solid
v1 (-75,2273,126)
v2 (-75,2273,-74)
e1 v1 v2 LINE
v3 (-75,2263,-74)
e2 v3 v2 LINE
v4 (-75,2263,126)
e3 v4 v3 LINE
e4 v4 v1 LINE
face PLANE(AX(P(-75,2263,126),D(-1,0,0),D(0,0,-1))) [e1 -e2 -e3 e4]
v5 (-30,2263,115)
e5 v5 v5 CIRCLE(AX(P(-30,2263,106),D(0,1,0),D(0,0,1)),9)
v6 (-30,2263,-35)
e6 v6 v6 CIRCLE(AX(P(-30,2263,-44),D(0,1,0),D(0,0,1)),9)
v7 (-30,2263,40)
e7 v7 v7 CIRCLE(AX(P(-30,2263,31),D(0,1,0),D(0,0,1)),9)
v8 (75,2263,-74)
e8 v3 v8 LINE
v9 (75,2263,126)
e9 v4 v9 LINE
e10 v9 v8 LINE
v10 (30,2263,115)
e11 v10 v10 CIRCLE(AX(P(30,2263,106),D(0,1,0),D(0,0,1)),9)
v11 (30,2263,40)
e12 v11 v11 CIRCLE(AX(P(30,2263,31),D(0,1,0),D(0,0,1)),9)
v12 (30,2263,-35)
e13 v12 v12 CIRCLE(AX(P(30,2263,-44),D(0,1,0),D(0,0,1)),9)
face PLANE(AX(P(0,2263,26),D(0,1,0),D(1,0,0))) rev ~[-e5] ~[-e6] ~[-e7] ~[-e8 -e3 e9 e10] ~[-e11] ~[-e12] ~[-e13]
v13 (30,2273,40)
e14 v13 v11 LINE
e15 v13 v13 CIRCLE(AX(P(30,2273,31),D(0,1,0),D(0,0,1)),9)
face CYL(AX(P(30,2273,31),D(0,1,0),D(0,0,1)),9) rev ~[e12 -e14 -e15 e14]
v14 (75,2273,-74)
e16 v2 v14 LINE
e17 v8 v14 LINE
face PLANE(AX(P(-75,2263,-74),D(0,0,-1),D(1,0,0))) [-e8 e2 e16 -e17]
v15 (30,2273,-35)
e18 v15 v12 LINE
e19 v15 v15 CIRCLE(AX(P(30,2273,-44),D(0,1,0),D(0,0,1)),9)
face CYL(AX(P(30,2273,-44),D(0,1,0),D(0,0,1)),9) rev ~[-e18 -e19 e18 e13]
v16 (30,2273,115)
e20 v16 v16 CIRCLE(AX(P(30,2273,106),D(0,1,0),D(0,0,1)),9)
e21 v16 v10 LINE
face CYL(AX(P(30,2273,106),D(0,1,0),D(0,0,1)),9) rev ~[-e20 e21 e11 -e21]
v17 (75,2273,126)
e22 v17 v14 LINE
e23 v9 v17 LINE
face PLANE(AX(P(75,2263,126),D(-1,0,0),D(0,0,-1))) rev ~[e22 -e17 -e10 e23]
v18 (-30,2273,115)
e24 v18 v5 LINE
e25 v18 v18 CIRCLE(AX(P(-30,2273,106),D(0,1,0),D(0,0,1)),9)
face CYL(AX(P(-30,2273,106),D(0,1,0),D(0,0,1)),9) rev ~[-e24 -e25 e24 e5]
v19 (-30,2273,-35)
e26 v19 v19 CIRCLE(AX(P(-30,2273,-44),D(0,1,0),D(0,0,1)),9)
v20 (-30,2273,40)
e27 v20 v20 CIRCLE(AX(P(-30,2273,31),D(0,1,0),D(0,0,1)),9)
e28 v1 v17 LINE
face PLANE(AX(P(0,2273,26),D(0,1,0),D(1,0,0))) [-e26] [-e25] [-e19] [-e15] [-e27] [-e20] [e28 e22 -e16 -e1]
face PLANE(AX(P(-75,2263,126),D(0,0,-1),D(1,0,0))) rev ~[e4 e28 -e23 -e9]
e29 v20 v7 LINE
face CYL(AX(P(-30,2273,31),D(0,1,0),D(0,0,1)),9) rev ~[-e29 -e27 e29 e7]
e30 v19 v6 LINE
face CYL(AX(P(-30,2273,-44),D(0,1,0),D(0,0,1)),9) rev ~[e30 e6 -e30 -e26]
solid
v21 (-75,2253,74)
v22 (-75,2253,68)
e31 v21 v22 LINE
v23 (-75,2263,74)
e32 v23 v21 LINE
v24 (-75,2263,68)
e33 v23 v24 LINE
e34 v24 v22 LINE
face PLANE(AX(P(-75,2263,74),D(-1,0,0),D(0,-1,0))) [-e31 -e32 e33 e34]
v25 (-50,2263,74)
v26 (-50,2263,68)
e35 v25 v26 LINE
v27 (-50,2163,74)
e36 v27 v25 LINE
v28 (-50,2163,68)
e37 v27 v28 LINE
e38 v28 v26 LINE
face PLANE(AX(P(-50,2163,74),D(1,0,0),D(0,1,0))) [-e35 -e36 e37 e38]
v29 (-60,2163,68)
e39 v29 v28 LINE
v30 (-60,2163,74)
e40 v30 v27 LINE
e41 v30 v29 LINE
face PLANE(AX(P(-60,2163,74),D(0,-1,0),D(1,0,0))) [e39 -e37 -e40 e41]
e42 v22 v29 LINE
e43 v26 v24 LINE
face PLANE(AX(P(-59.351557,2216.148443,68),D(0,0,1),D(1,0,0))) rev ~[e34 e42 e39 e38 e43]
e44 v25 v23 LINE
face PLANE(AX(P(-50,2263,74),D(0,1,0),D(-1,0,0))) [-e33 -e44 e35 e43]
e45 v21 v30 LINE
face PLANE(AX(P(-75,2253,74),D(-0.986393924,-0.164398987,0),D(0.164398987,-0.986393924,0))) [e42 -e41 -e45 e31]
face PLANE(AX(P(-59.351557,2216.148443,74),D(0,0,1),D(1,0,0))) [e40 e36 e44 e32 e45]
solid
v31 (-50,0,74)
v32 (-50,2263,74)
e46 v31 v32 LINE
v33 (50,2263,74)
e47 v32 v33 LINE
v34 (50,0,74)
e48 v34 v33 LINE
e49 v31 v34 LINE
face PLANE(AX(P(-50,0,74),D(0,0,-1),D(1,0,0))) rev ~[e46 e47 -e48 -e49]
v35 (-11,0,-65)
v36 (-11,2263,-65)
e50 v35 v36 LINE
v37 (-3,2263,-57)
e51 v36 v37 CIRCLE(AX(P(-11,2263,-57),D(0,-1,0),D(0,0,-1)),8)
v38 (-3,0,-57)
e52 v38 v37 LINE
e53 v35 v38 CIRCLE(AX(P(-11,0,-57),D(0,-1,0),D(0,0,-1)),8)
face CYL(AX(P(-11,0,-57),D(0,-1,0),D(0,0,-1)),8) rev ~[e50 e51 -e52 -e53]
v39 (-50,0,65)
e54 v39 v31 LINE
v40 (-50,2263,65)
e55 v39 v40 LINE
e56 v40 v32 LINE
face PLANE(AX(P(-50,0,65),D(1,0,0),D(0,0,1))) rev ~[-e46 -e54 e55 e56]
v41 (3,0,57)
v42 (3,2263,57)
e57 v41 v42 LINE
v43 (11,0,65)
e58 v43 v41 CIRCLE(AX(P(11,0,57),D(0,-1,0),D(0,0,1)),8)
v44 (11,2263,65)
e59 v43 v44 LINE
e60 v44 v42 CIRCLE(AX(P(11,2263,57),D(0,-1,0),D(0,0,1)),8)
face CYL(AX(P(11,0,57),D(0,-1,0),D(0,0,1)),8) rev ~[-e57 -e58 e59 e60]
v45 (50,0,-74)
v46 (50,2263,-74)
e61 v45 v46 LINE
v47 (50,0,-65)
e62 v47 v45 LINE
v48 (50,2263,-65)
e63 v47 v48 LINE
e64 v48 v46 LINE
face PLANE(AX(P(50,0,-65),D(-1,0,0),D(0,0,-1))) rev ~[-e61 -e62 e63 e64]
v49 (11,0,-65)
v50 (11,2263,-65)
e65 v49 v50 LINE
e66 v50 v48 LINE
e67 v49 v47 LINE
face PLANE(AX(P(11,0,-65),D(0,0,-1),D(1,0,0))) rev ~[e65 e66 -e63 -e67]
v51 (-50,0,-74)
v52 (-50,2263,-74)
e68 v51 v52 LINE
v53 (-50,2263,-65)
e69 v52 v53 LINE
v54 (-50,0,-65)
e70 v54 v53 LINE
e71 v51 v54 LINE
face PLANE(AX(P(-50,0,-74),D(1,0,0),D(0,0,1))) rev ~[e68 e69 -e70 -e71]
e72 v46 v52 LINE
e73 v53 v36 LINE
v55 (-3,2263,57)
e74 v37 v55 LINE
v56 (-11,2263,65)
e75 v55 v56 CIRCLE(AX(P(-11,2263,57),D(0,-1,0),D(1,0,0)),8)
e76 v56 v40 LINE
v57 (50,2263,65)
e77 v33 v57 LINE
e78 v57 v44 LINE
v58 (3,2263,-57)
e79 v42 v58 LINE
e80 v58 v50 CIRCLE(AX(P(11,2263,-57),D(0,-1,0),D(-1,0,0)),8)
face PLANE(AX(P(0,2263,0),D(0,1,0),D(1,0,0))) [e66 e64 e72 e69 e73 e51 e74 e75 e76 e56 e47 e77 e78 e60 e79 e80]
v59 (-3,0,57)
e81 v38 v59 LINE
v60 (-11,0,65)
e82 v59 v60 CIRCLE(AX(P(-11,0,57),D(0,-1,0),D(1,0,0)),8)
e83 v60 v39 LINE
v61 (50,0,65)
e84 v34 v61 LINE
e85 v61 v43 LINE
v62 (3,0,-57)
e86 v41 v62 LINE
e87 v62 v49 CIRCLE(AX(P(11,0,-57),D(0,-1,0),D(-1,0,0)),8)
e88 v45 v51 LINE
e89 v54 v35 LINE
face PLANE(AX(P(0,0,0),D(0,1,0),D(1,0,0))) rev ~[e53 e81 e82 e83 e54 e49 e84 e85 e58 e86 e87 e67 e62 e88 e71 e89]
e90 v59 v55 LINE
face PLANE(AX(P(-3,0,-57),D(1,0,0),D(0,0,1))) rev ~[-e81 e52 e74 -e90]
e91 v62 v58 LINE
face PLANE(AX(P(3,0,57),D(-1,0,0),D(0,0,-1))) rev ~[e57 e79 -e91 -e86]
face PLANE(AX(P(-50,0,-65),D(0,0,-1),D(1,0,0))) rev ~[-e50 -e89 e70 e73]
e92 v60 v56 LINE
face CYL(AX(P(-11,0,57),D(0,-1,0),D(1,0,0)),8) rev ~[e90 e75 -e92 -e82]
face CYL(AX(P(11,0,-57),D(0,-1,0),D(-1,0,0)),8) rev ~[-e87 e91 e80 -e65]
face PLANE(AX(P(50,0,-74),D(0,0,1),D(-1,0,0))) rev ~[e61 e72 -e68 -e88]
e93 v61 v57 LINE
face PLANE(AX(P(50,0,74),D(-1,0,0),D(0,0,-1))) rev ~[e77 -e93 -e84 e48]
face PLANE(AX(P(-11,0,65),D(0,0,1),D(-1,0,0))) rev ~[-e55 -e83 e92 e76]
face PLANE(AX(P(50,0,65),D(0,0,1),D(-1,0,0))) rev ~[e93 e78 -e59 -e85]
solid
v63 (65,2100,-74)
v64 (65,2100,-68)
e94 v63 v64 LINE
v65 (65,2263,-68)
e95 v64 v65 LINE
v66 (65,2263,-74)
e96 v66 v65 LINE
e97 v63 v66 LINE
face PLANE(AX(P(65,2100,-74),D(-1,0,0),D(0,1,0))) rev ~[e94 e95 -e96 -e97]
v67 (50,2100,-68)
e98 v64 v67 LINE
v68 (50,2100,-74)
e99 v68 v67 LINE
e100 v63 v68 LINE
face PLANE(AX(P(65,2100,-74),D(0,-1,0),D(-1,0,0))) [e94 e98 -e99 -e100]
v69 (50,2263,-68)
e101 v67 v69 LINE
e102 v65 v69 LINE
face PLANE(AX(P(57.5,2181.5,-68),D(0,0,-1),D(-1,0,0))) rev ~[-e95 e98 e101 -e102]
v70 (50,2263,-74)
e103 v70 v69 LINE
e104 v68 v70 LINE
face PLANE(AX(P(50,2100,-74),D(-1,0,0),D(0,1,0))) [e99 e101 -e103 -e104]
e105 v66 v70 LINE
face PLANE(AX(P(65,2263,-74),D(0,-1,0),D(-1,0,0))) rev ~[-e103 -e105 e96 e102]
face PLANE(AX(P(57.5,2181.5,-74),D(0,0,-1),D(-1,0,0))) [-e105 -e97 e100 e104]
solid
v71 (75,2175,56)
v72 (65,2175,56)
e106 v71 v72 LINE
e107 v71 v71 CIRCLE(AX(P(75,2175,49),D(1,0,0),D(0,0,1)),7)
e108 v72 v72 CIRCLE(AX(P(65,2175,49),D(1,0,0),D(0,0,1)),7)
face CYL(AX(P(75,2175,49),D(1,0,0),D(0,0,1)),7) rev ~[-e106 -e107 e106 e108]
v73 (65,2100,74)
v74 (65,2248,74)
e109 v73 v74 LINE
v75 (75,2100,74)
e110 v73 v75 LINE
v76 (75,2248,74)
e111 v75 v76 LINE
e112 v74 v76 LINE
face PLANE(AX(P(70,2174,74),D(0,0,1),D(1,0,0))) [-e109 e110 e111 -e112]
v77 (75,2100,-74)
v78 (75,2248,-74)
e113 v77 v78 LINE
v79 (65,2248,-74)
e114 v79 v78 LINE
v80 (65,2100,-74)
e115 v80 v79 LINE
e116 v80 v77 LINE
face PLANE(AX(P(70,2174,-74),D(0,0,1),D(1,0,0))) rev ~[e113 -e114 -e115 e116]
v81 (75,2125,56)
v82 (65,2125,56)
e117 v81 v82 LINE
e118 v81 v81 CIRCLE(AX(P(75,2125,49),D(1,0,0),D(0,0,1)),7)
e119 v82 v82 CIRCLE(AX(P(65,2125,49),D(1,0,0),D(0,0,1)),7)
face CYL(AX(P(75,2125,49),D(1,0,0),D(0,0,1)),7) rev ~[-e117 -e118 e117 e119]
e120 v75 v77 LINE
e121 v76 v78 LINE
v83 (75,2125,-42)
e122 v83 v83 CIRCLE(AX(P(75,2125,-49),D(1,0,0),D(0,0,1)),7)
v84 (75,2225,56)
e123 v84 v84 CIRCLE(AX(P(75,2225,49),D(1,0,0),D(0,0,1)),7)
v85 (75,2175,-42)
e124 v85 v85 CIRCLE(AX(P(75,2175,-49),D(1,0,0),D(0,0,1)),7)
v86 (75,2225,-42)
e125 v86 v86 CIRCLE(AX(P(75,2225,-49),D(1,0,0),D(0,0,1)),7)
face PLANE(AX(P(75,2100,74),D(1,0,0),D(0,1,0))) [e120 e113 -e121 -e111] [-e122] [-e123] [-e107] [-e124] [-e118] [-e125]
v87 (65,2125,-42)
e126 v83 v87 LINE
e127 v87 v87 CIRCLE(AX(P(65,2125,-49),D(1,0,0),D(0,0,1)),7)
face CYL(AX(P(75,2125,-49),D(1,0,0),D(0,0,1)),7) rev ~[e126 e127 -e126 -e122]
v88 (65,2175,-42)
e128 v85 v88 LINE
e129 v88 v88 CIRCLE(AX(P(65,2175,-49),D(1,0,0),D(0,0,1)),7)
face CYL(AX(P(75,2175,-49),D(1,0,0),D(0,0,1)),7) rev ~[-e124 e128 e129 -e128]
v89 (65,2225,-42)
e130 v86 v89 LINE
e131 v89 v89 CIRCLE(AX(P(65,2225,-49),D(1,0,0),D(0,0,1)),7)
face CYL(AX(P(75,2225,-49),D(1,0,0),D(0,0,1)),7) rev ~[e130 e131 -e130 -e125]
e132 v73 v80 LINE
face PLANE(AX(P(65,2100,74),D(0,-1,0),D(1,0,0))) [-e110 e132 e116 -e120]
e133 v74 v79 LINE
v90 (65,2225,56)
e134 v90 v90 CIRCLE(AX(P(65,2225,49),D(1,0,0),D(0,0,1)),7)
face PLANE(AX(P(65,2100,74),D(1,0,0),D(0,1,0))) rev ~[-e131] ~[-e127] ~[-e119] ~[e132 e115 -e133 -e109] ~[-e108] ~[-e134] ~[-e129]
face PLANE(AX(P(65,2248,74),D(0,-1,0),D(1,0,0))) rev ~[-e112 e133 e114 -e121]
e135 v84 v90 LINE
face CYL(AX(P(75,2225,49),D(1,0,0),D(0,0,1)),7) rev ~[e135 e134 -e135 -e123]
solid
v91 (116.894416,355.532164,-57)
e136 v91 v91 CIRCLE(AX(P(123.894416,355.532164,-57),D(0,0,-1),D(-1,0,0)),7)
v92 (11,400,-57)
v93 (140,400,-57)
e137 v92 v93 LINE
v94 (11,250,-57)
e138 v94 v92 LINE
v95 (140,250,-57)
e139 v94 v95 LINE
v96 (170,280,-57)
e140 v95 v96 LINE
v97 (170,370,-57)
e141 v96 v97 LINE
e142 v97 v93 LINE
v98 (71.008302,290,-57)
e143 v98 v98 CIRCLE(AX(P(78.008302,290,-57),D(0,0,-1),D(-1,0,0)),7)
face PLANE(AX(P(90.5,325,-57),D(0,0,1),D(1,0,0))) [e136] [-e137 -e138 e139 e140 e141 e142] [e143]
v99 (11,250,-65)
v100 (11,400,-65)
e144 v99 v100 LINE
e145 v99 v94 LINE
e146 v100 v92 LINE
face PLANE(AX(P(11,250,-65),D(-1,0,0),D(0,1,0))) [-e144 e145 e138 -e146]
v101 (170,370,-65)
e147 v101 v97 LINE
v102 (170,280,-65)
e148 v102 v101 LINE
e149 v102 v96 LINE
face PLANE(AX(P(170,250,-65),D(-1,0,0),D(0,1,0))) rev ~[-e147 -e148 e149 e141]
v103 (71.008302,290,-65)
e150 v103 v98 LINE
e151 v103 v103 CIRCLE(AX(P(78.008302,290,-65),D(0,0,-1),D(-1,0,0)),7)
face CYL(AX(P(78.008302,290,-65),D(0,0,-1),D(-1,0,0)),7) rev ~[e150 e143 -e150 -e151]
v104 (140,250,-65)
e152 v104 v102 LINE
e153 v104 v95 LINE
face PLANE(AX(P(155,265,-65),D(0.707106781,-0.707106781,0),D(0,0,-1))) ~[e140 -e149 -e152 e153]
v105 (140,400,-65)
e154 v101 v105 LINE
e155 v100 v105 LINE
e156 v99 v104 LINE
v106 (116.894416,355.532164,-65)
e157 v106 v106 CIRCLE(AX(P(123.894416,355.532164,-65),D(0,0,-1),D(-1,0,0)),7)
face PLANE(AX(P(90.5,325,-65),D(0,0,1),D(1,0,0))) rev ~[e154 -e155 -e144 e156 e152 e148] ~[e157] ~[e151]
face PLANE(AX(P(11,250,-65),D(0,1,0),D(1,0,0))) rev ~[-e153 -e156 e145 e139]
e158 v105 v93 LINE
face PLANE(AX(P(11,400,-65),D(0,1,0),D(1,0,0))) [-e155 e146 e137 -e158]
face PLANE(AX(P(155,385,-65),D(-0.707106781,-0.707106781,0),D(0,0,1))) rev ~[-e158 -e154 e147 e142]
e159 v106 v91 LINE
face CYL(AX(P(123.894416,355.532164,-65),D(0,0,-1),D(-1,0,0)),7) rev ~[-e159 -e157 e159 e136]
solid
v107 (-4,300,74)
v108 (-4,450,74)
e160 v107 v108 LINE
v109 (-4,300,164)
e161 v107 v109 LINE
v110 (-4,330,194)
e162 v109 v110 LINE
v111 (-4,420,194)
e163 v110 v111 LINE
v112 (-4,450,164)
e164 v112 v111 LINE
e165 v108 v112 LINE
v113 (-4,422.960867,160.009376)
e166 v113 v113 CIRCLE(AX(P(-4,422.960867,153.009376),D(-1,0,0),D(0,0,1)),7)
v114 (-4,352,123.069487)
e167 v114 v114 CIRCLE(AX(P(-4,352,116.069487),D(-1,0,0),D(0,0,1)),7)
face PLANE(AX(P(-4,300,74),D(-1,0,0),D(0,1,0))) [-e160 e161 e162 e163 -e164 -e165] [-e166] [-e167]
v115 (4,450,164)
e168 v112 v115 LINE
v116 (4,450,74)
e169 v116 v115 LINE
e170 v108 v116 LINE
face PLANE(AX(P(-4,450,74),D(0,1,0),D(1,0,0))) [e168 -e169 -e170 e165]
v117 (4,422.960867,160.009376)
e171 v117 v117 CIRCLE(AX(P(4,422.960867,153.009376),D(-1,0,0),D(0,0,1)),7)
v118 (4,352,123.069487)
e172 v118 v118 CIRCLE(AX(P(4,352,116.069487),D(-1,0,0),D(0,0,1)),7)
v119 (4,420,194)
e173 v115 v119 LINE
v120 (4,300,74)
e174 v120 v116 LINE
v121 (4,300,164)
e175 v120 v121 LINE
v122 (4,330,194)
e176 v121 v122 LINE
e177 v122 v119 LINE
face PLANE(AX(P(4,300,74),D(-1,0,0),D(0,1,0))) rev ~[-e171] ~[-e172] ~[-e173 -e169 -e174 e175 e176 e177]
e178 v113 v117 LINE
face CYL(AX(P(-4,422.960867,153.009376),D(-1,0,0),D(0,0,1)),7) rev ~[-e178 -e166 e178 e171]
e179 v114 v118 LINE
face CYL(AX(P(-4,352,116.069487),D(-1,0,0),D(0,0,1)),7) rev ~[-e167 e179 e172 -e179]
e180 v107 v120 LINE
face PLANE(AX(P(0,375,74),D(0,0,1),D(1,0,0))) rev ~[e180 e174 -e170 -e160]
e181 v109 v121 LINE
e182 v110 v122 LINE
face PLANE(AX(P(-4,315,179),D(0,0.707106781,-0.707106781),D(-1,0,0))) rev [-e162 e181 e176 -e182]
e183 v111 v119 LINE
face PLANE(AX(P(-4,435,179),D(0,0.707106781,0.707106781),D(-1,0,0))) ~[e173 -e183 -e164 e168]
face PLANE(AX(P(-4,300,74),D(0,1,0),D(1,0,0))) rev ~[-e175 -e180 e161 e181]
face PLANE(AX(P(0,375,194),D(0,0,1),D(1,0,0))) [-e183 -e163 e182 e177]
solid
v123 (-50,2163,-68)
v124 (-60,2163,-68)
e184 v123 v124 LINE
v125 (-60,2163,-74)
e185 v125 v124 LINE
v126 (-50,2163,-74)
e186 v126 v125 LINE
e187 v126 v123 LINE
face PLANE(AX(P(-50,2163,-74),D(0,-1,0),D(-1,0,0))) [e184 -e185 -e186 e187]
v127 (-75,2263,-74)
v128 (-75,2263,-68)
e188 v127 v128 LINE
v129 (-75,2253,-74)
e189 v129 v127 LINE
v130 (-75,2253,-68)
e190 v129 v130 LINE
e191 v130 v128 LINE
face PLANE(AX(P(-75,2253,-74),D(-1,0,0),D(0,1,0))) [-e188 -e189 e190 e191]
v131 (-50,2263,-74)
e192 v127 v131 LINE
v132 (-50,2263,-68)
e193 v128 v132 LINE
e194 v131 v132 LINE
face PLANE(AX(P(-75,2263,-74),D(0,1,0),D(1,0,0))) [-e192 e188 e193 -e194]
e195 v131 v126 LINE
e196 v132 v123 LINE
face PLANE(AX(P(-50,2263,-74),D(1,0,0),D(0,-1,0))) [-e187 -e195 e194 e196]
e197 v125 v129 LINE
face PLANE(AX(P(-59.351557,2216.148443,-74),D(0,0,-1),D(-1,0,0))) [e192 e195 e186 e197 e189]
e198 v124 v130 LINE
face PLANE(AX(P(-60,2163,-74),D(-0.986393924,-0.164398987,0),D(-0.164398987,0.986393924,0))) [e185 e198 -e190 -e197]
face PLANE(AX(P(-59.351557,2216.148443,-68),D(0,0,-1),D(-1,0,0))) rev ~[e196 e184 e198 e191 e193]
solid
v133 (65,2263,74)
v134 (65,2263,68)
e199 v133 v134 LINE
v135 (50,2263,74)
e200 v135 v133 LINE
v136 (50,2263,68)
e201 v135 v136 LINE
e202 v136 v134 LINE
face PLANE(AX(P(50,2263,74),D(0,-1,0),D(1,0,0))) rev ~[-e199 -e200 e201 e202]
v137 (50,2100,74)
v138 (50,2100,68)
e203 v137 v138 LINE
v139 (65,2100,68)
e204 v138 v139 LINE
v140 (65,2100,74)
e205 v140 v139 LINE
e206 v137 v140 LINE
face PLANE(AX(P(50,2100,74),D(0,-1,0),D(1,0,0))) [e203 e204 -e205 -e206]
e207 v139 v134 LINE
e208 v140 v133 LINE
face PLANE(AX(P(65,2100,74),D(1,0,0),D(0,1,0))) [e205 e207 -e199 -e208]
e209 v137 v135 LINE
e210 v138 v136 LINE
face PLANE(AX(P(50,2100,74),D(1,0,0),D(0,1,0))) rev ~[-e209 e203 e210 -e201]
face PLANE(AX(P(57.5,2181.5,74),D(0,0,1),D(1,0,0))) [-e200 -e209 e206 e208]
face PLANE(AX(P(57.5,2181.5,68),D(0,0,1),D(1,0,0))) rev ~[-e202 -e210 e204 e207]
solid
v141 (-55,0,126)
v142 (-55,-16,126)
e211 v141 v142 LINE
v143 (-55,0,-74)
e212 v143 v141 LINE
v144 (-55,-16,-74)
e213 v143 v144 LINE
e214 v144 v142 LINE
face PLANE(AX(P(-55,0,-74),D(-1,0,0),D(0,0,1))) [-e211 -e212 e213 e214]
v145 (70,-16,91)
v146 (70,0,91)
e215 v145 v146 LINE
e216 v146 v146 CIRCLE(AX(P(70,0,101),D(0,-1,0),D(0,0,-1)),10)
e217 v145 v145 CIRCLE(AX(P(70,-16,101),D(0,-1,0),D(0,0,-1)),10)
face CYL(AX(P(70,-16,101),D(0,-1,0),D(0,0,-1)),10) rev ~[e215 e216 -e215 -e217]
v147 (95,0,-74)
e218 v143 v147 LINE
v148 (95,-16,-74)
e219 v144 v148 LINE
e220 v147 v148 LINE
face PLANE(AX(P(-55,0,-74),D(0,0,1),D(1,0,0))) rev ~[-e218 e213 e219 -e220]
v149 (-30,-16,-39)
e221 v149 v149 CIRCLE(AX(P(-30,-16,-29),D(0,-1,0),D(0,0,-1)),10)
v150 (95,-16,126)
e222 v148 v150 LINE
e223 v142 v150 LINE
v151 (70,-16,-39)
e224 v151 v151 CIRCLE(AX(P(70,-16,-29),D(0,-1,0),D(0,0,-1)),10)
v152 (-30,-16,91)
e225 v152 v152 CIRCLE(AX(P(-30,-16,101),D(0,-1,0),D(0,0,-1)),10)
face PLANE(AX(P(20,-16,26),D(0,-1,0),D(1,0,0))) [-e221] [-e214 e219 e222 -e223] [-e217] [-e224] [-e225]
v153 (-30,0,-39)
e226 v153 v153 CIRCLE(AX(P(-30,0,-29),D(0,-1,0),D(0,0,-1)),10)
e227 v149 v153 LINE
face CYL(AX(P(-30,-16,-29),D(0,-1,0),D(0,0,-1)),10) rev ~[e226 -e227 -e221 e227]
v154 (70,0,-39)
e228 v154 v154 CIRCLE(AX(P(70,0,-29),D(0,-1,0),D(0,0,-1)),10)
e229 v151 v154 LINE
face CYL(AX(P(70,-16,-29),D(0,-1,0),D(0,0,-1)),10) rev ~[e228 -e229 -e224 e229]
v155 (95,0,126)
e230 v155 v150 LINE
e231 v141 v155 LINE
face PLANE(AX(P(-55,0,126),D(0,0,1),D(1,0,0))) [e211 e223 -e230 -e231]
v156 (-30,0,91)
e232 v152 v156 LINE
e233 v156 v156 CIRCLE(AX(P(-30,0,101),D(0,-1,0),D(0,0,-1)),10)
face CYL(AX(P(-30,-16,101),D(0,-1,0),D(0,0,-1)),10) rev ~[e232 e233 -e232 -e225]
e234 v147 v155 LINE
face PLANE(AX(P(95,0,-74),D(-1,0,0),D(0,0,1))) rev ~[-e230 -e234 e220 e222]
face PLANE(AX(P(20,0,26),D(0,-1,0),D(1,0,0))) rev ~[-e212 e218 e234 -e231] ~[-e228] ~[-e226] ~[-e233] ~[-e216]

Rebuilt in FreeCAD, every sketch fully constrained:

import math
import FreeCAD as App
import Part
import Sketcher


def edges_at(feature, points):
    """Names of the edges that pass closest to the given points."""
    edges = feature.Shape.Edges
    near = lambda p: min(range(len(edges)), key=lambda i: edges[i].distToShape(Part.Vertex(*p))[0])
    return sorted({f"Edge{near(p) + 1}" for p in points})


def add_polygon(sketch, points):
    """Adds a closed chain of lines whose ends are joined by coincident constraints."""
    first, n = sketch.GeometryCount, len(points)
    for a, b in zip(points, points[1:] + points[:1]):
        sketch.addGeometry(Part.LineSegment(App.Vector(*a, 0), App.Vector(*b, 0)), False)
    for i in range(n):
        sketch.addConstraint(Sketcher.Constraint("Coincident", first + i, 2, first + (i + 1) % n, 1))

doc = App.newDocument("Part")
body = doc.addObject("PartDesign::Body", "Body")

sketch1 = body.newObject("Sketcher::SketchObject", "Sketch")
sketch1.AttachmentSupport = (doc.getObject("XZ_Plane"), [""])
sketch1.MapMode = "FlatFace"
sketch1.addGeometry(Part.LineSegment(App.Vector(-50, 74, 0), App.Vector(50, 74, 0)), False)
sketch1.addGeometry(Part.LineSegment(App.Vector(50, 74, 0), App.Vector(50, 65, 0)), False)
sketch1.addGeometry(Part.LineSegment(App.Vector(50, 65, 0), App.Vector(11, 65, 0)), False)
sketch1.addGeometry(Part.ArcOfCircle(Part.Circle(App.Vector(11, 57, 0), App.Vector(0, 0, 1), 8), math.radians(90), math.radians(180)), False)
sketch1.addGeometry(Part.LineSegment(App.Vector(3, 57, 0), App.Vector(3, -57, 0)), False)
sketch1.addGeometry(Part.ArcOfCircle(Part.Circle(App.Vector(11, -57, 0), App.Vector(0, 0, 1), 8), math.radians(-180), math.radians(-90)), False)
sketch1.addGeometry(Part.LineSegment(App.Vector(11, -65, 0), App.Vector(50, -65, 0)), False)
sketch1.addGeometry(Part.LineSegment(App.Vector(50, -65, 0), App.Vector(50, -74, 0)), False)
sketch1.addGeometry(Part.LineSegment(App.Vector(50, -74, 0), App.Vector(-50, -74, 0)), False)
sketch1.addGeometry(Part.LineSegment(App.Vector(-50, -74, 0), App.Vector(-50, -65, 0)), False)
sketch1.addGeometry(Part.LineSegment(App.Vector(-50, -65, 0), App.Vector(-11, -65, 0)), False)
sketch1.addGeometry(Part.ArcOfCircle(Part.Circle(App.Vector(-11, -57, 0), App.Vector(0, 0, 1), 8), math.radians(-90), math.radians(0)), False)
sketch1.addGeometry(Part.LineSegment(App.Vector(-3, -57, 0), App.Vector(-3, 57, 0)), False)
sketch1.addGeometry(Part.ArcOfCircle(Part.Circle(App.Vector(-11, 57, 0), App.Vector(0, 0, 1), 8), math.radians(0), math.radians(90)), False)
sketch1.addGeometry(Part.LineSegment(App.Vector(-11, 65, 0), App.Vector(-50, 65, 0)), False)
sketch1.addGeometry(Part.LineSegment(App.Vector(-50, 65, 0), App.Vector(-50, 74, 0)), False)
sketch1.addConstraint(Sketcher.Constraint("Coincident", 0, 2, 1, 1))
sketch1.addConstraint(Sketcher.Constraint("Coincident", 1, 2, 2, 1))
sketch1.addConstraint(Sketcher.Constraint("Tangent", 2, 2, 3, 1))
sketch1.addConstraint(Sketcher.Constraint("Tangent", 3, 2, 4, 1))
sketch1.addConstraint(Sketcher.Constraint("Tangent", 4, 2, 5, 1))
sketch1.addConstraint(Sketcher.Constraint("Tangent", 5, 2, 6, 1))
sketch1.addConstraint(Sketcher.Constraint("Coincident", 6, 2, 7, 1))
sketch1.addConstraint(Sketcher.Constraint("Coincident", 7, 2, 8, 1))
sketch1.addConstraint(Sketcher.Constraint("Coincident", 8, 2, 9, 1))
sketch1.addConstraint(Sketcher.Constraint("Coincident", 9, 2, 10, 1))
sketch1.addConstraint(Sketcher.Constraint("Tangent", 10, 2, 11, 1))
sketch1.addConstraint(Sketcher.Constraint("Tangent", 11, 2, 12, 1))
sketch1.addConstraint(Sketcher.Constraint("Tangent", 12, 2, 13, 1))
sketch1.addConstraint(Sketcher.Constraint("Tangent", 13, 2, 14, 1))
sketch1.addConstraint(Sketcher.Constraint("Coincident", 14, 2, 15, 1))
sketch1.addConstraint(Sketcher.Constraint("Coincident", 15, 2, 0, 1))
sketch1.addConstraint(Sketcher.Constraint("Horizontal", 0))
sketch1.addConstraint(Sketcher.Constraint("Vertical", 1))
sketch1.addConstraint(Sketcher.Constraint("Horizontal", 2))
sketch1.addConstraint(Sketcher.Constraint("Vertical", 4))
sketch1.addConstraint(Sketcher.Constraint("Horizontal", 6))
sketch1.addConstraint(Sketcher.Constraint("Vertical", 7))
sketch1.addConstraint(Sketcher.Constraint("Horizontal", 8))
sketch1.addConstraint(Sketcher.Constraint("Vertical", 9))
sketch1.addConstraint(Sketcher.Constraint("Horizontal", 10))
sketch1.addConstraint(Sketcher.Constraint("Vertical", 12))
sketch1.addConstraint(Sketcher.Constraint("Horizontal", 14))
sketch1.addConstraint(Sketcher.Constraint("Vertical", 15))
sketch1.addConstraint(Sketcher.Constraint("Equal", 3, 5))
sketch1.addConstraint(Sketcher.Constraint("Equal", 5, 11))
sketch1.addConstraint(Sketcher.Constraint("Equal", 11, 13))
sketch1.addConstraint(Sketcher.Constraint("Symmetric", 3, 3, 11, 3, -1, 1))
sketch1.addConstraint(Sketcher.Constraint("Symmetric", 0, 2, 8, 2, -1, 1))
sketch1.addConstraint(Sketcher.Constraint("Symmetric", 6, 2, 14, 2, -1, 1))
sketch1.addConstraint(Sketcher.Constraint("Symmetric", 6, 2, 9, 2, -2))
sketch1.addConstraint(Sketcher.Constraint("Radius", 3, 8.0))
sketch1.addConstraint(Sketcher.Constraint("DistanceX", 0, 1, 0, 2, 100.0))
sketch1.addConstraint(Sketcher.Constraint("DistanceX", 2, 2, 2, 1, 39.0))
sketch1.addConstraint(Sketcher.Constraint("DistanceY", 1, 2, 1, 1, 9.0))
sketch1.addConstraint(Sketcher.Constraint("DistanceY", 4, 2, 4, 1, 114.0))
pad1 = body.newObject("PartDesign::Pad", "Pad")
pad1.Profile = sketch1
pad1.Length = 2263
pad1.Reversed = True
body2 = doc.addObject("PartDesign::Body", "Body001")

sketch2 = body2.newObject("Sketcher::SketchObject", "Sketch001")
sketch2.AttachmentSupport = (doc.getObject("XZ_Plane001"), [""])
sketch2.MapMode = "FlatFace"
sketch2.AttachmentOffset = App.Placement(App.Vector(0, 0, -2263), App.Rotation())
add_polygon(sketch2, [(-75, -74), (-75, 126), (75, 126), (75, -74)])
sketch2.addConstraint(Sketcher.Constraint("Vertical", 0))
sketch2.addConstraint(Sketcher.Constraint("Horizontal", 1))
sketch2.addConstraint(Sketcher.Constraint("Vertical", 2))
sketch2.addConstraint(Sketcher.Constraint("Horizontal", 3))
sketch2.addConstraint(Sketcher.Constraint("DistanceX", 1, 1, 1, 2, 150.0))
sketch2.addConstraint(Sketcher.Constraint("DistanceY", 0, 1, 0, 2, 200.0))
sketch2.addConstraint(Sketcher.Constraint("DistanceX", 0, 2, -1, 1, 75.0))
sketch2.addConstraint(Sketcher.Constraint("DistanceY", -1, 1, 0, 2, 126.0))
pad2 = body2.newObject("PartDesign::Pad", "Pad001")
pad2.Profile = sketch2
pad2.Length = 10
pad2.Reversed = True

sketch3 = body2.newObject("Sketcher::SketchObject", "Sketch002")
sketch3.AttachmentSupport = (doc.getObject("XZ_Plane001"), [""])
sketch3.MapMode = "FlatFace"
sketch3.AttachmentOffset = App.Placement(App.Vector(0, 0, -2273), App.Rotation())
sketch3.addGeometry(Part.Circle(App.Vector(-30, -44, 0), App.Vector(0, 0, 1), 9), False)
sketch3.addGeometry(Part.Circle(App.Vector(30, -44, 0), App.Vector(0, 0, 1), 9), False)
sketch3.addGeometry(Part.Circle(App.Vector(-30, 31, 0), App.Vector(0, 0, 1), 9), False)
sketch3.addGeometry(Part.Circle(App.Vector(30, 31, 0), App.Vector(0, 0, 1), 9), False)
sketch3.addGeometry(Part.Circle(App.Vector(-30, 106, 0), App.Vector(0, 0, 1), 9), False)
sketch3.addGeometry(Part.Circle(App.Vector(30, 106, 0), App.Vector(0, 0, 1), 9), False)
sketch3.addConstraint(Sketcher.Constraint("Equal", 0, 1))
sketch3.addConstraint(Sketcher.Constraint("Equal", 1, 2))
sketch3.addConstraint(Sketcher.Constraint("Equal", 2, 3))
sketch3.addConstraint(Sketcher.Constraint("Equal", 3, 4))
sketch3.addConstraint(Sketcher.Constraint("Equal", 4, 5))
sketch3.addConstraint(Sketcher.Constraint("Symmetric", 0, 3, 1, 3, -2))
sketch3.addConstraint(Sketcher.Constraint("Symmetric", 2, 3, 3, 3, -2))
sketch3.addConstraint(Sketcher.Constraint("Symmetric", 4, 3, 5, 3, -2))
sketch3.addConstraint(Sketcher.Constraint("Vertical", 0, 3, 2, 3))
sketch3.addConstraint(Sketcher.Constraint("Vertical", 2, 3, 4, 3))
sketch3.addConstraint(Sketcher.Constraint("Diameter", 0, 18.0))
sketch3.addConstraint(Sketcher.Constraint("DistanceX", 0, 3, -1, 1, 30.0))
sketch3.addConstraint(Sketcher.Constraint("DistanceY", 0, 3, -1, 1, 44.0))
sketch3.addConstraint(Sketcher.Constraint("DistanceY", -1, 1, 2, 3, 31.0))
sketch3.addConstraint(Sketcher.Constraint("DistanceY", -1, 1, 4, 3, 106.0))
pocket1 = body2.newObject("PartDesign::Pocket", "Pocket")
pocket1.Profile = sketch3
pocket1.Length = 10
pocket1.Reversed = True
body3 = doc.addObject("PartDesign::Body", "Body002")

sketch4 = body3.newObject("Sketcher::SketchObject", "Sketch003")
sketch4.AttachmentSupport = (doc.getObject("XZ_Plane002"), [""])
sketch4.MapMode = "FlatFace"
add_polygon(sketch4, [(-55, 126), (-55, -74), (95, -74), (95, 126)])
sketch4.addConstraint(Sketcher.Constraint("Vertical", 0))
sketch4.addConstraint(Sketcher.Constraint("Horizontal", 1))
sketch4.addConstraint(Sketcher.Constraint("Vertical", 2))
sketch4.addConstraint(Sketcher.Constraint("Horizontal", 3))
sketch4.addConstraint(Sketcher.Constraint("DistanceX", 1, 1, 1, 2, 150.0))
sketch4.addConstraint(Sketcher.Constraint("DistanceY", 0, 2, 0, 1, 200.0))
sketch4.addConstraint(Sketcher.Constraint("DistanceX", 0, 2, -1, 1, 55.0))
sketch4.addConstraint(Sketcher.Constraint("DistanceY", 0, 2, -1, 1, 74.0))
pad3 = body3.newObject("PartDesign::Pad", "Pad002")
pad3.Profile = sketch4
pad3.Length = 16

sketch5 = body3.newObject("Sketcher::SketchObject", "Sketch004")
sketch5.AttachmentSupport = (doc.getObject("XZ_Plane002"), [""])
sketch5.MapMode = "FlatFace"
sketch5.AttachmentOffset = App.Placement(App.Vector(0, 0, 16), App.Rotation())
sketch5.addGeometry(Part.Circle(App.Vector(70, 101, 0), App.Vector(0, 0, 1), 10), False)
sketch5.addGeometry(Part.Circle(App.Vector(-30, 101, 0), App.Vector(0, 0, 1), 10), False)
sketch5.addGeometry(Part.Circle(App.Vector(-30, -29, 0), App.Vector(0, 0, 1), 10), False)
sketch5.addGeometry(Part.Circle(App.Vector(70, -29, 0), App.Vector(0, 0, 1), 10), False)
sketch5.addConstraint(Sketcher.Constraint("Equal", 0, 1))
sketch5.addConstraint(Sketcher.Constraint("Equal", 1, 2))
sketch5.addConstraint(Sketcher.Constraint("Equal", 2, 3))
sketch5.addConstraint(Sketcher.Constraint("Horizontal", 0, 3, 1, 3))
sketch5.addConstraint(Sketcher.Constraint("Horizontal", 2, 3, 3, 3))
sketch5.addConstraint(Sketcher.Constraint("Vertical", 1, 3, 2, 3))
sketch5.addConstraint(Sketcher.Constraint("Vertical", 0, 3, 3, 3))
sketch5.addConstraint(Sketcher.Constraint("Diameter", 0, 20.0))
sketch5.addConstraint(Sketcher.Constraint("DistanceX", -1, 1, 0, 3, 70.0))
sketch5.addConstraint(Sketcher.Constraint("DistanceY", -1, 1, 0, 3, 101.0))
sketch5.addConstraint(Sketcher.Constraint("DistanceX", 1, 3, -1, 1, 30.0))
sketch5.addConstraint(Sketcher.Constraint("DistanceY", 2, 3, -1, 1, 29.0))
pocket2 = body3.newObject("PartDesign::Pocket", "Pocket001")
pocket2.Profile = sketch5
pocket2.Length = 16
body4 = doc.addObject("PartDesign::Body", "Body003")

sketch6 = body4.newObject("Sketcher::SketchObject", "Sketch005")
sketch6.AttachmentSupport = (doc.getObject("XY_Plane003"), [""])
sketch6.MapMode = "FlatFace"
sketch6.AttachmentOffset = App.Placement(App.Vector(0, 0, 74), App.Rotation())
add_polygon(sketch6, [(-4, 450), (-4, 300), (4, 300), (4, 450)])
sketch6.addConstraint(Sketcher.Constraint("Vertical", 0))
sketch6.addConstraint(Sketcher.Constraint("Horizontal", 1))
sketch6.addConstraint(Sketcher.Constraint("Vertical", 2))
sketch6.addConstraint(Sketcher.Constraint("Horizontal", 3))
sketch6.addConstraint(Sketcher.Constraint("DistanceX", 1, 1, 1, 2, 8.0))
sketch6.addConstraint(Sketcher.Constraint("DistanceY", 0, 2, 0, 1, 150.0))
sketch6.addConstraint(Sketcher.Constraint("DistanceX", 0, 2, -1, 1, 4.0))
sketch6.addConstraint(Sketcher.Constraint("DistanceY", -1, 1, 0, 2, 300.0))
pad4 = body4.newObject("PartDesign::Pad", "Pad003")
pad4.Profile = sketch6
pad4.Length = 120
doc.recompute()

chamfer = body4.newObject("PartDesign::Chamfer", "Chamfer")
chamfer.Base = (pad4, edges_at(pad4, [(0, 300, 194), (0, 450, 194)]))
chamfer.Size = 30

sketch7 = body4.newObject("Sketcher::SketchObject", "Sketch006")
sketch7.AttachmentSupport = (doc.getObject("YZ_Plane003"), [""])
sketch7.MapMode = "FlatFace"
sketch7.AttachmentOffset = App.Placement(App.Vector(0, 0, -4), App.Rotation())
sketch7.addGeometry(Part.Circle(App.Vector(352, 116.069487, 0), App.Vector(0, 0, 1), 7), False)
sketch7.addGeometry(Part.Circle(App.Vector(422.960867, 153.009376, 0), App.Vector(0, 0, 1), 7), False)
sketch7.addConstraint(Sketcher.Constraint("Equal", 0, 1))
sketch7.addConstraint(Sketcher.Constraint("Diameter", 0, 14.0))
sketch7.addConstraint(Sketcher.Constraint("DistanceX", -1, 1, 0, 3, 352.0))
sketch7.addConstraint(Sketcher.Constraint("DistanceY", 0, 3, 1, 3, 36.939889))
sketch7.addConstraint(Sketcher.Constraint("DistanceY", -1, 1, 0, 3, 116.069487))
sketch7.addConstraint(Sketcher.Constraint("DistanceX", -1, 1, 1, 3, 422.960867))
pocket3 = body4.newObject("PartDesign::Pocket", "Pocket002")
pocket3.Profile = sketch7
pocket3.Length = 8
pocket3.Reversed = True
body5 = doc.addObject("PartDesign::Body", "Body004")

sketch8 = body5.newObject("Sketcher::SketchObject", "Sketch007")
sketch8.AttachmentSupport = (doc.getObject("XY_Plane004"), [""])
sketch8.MapMode = "FlatFace"
sketch8.AttachmentOffset = App.Placement(App.Vector(0, 0, -65), App.Rotation())
add_polygon(sketch8, [(11, 400), (11, 250), (170, 250), (170, 400)])
sketch8.addConstraint(Sketcher.Constraint("Vertical", 0))
sketch8.addConstraint(Sketcher.Constraint("Horizontal", 1))
sketch8.addConstraint(Sketcher.Constraint("Vertical", 2))
sketch8.addConstraint(Sketcher.Constraint("Horizontal", 3))
sketch8.addConstraint(Sketcher.Constraint("DistanceX", 1, 1, 1, 2, 159.0))
sketch8.addConstraint(Sketcher.Constraint("DistanceY", 0, 2, 0, 1, 150.0))
sketch8.addConstraint(Sketcher.Constraint("DistanceX", -1, 1, 0, 2, 11.0))
sketch8.addConstraint(Sketcher.Constraint("DistanceY", -1, 1, 0, 2, 250.0))
pad5 = body5.newObject("PartDesign::Pad", "Pad004")
pad5.Profile = sketch8
pad5.Length = 8
doc.recompute()

chamfer2 = body5.newObject("PartDesign::Chamfer", "Chamfer001")
chamfer2.Base = (pad5, edges_at(pad5, [(170, 250, -61), (170, 400, -61)]))
chamfer2.Size = 30

sketch9 = body5.newObject("Sketcher::SketchObject", "Sketch008")
sketch9.AttachmentSupport = (doc.getObject("XY_Plane004"), [""])
sketch9.MapMode = "FlatFace"
sketch9.AttachmentOffset = App.Placement(App.Vector(0, 0, -65), App.Rotation())
sketch9.addGeometry(Part.Circle(App.Vector(78.008302, 290, 0), App.Vector(0, 0, 1), 7), False)
sketch9.addGeometry(Part.Circle(App.Vector(123.894416, 355.532164, 0), App.Vector(0, 0, 1), 7), False)
sketch9.addConstraint(Sketcher.Constraint("Equal", 0, 1))
sketch9.addConstraint(Sketcher.Constraint("Diameter", 0, 14.0))
sketch9.addConstraint(Sketcher.Constraint("DistanceY", -1, 1, 0, 3, 290.0))
sketch9.addConstraint(Sketcher.Constraint("DistanceX", -1, 1, 0, 3, 78.008302))
sketch9.addConstraint(Sketcher.Constraint("DistanceX", -1, 1, 1, 3, 123.894416))
sketch9.addConstraint(Sketcher.Constraint("DistanceY", -1, 1, 1, 3, 355.532164))
pocket4 = body5.newObject("PartDesign::Pocket", "Pocket003")
pocket4.Profile = sketch9
pocket4.Length = 8
pocket4.Reversed = True
body6 = doc.addObject("PartDesign::Body", "Body005")

sketch10 = body6.newObject("Sketcher::SketchObject", "Sketch009")
sketch10.AttachmentSupport = (doc.getObject("XY_Plane005"), [""])
sketch10.MapMode = "FlatFace"
sketch10.AttachmentOffset = App.Placement(App.Vector(0, 0, 74), App.Rotation())
add_polygon(sketch10, [(-50, 2263), (-75, 2263), (-75, 2253), (-60, 2163), (-50, 2163)])
sketch10.addConstraint(Sketcher.Constraint("Horizontal", 0))
sketch10.addConstraint(Sketcher.Constraint("Vertical", 1))
sketch10.addConstraint(Sketcher.Constraint("Horizontal", 3))
sketch10.addConstraint(Sketcher.Constraint("Vertical", 4))
sketch10.addConstraint(Sketcher.Constraint("Equal", 3, 1))
sketch10.addConstraint(Sketcher.Constraint("DistanceX", 0, 2, 0, 1, 25.0))
sketch10.addConstraint(Sketcher.Constraint("DistanceX", 3, 1, 3, 2, 10.0))
sketch10.addConstraint(Sketcher.Constraint("DistanceY", 4, 1, 4, 2, 100.0))
sketch10.addConstraint(Sketcher.Constraint("DistanceX", 0, 2, -1, 1, 75.0))
sketch10.addConstraint(Sketcher.Constraint("DistanceY", -1, 1, 0, 2, 2263.0))
pad6 = body6.newObject("PartDesign::Pad", "Pad005")
pad6.Profile = sketch10
pad6.Length = 6
pad6.Reversed = True
body7 = doc.addObject("PartDesign::Body", "Body006")

sketch11 = body7.newObject("Sketcher::SketchObject", "Sketch010")
sketch11.AttachmentSupport = (doc.getObject("XY_Plane006"), [""])
sketch11.MapMode = "FlatFace"
sketch11.AttachmentOffset = App.Placement(App.Vector(0, 0, 74), App.Rotation())
add_polygon(sketch11, [(50, 2263), (50, 2100), (65, 2100), (65, 2263)])
sketch11.addConstraint(Sketcher.Constraint("Vertical", 0))
sketch11.addConstraint(Sketcher.Constraint("Horizontal", 1))
sketch11.addConstraint(Sketcher.Constraint("Vertical", 2))
sketch11.addConstraint(Sketcher.Constraint("Horizontal", 3))
sketch11.addConstraint(Sketcher.Constraint("DistanceX", 1, 1, 1, 2, 15.0))
sketch11.addConstraint(Sketcher.Constraint("DistanceY", 0, 2, 0, 1, 163.0))
sketch11.addConstraint(Sketcher.Constraint("DistanceX", -1, 1, 0, 2, 50.0))
sketch11.addConstraint(Sketcher.Constraint("DistanceY", -1, 1, 0, 2, 2100.0))
pad7 = body7.newObject("PartDesign::Pad", "Pad006")
pad7.Profile = sketch11
pad7.Length = 6
pad7.Reversed = True
body8 = doc.addObject("PartDesign::Body", "Body007")

sketch12 = body8.newObject("Sketcher::SketchObject", "Sketch011")
sketch12.AttachmentSupport = (doc.getObject("XY_Plane007"), [""])
sketch12.MapMode = "FlatFace"
sketch12.AttachmentOffset = App.Placement(App.Vector(0, 0, -74), App.Rotation())
add_polygon(sketch12, [(65, 2263), (65, 2100), (50, 2100), (50, 2263)])
sketch12.addConstraint(Sketcher.Constraint("Vertical", 0))
sketch12.addConstraint(Sketcher.Constraint("Horizontal", 1))
sketch12.addConstraint(Sketcher.Constraint("Vertical", 2))
sketch12.addConstraint(Sketcher.Constraint("Horizontal", 3))
sketch12.addConstraint(Sketcher.Constraint("DistanceX", 1, 2, 1, 1, 15.0))
sketch12.addConstraint(Sketcher.Constraint("DistanceY", 0, 2, 0, 1, 163.0))
sketch12.addConstraint(Sketcher.Constraint("DistanceX", -1, 1, 0, 2, 65.0))
sketch12.addConstraint(Sketcher.Constraint("DistanceY", -1, 1, 0, 2, 2100.0))
pad8 = body8.newObject("PartDesign::Pad", "Pad007")
pad8.Profile = sketch12
pad8.Length = 6
body9 = doc.addObject("PartDesign::Body", "Body008")

sketch13 = body9.newObject("Sketcher::SketchObject", "Sketch012")
sketch13.AttachmentSupport = (doc.getObject("XY_Plane008"), [""])
sketch13.MapMode = "FlatFace"
sketch13.AttachmentOffset = App.Placement(App.Vector(0, 0, -74), App.Rotation())
add_polygon(sketch13, [(-50, 2263), (-50, 2163), (-60, 2163), (-75, 2253), (-75, 2263)])
sketch13.addConstraint(Sketcher.Constraint("Vertical", 0))
sketch13.addConstraint(Sketcher.Constraint("Horizontal", 1))
sketch13.addConstraint(Sketcher.Constraint("Vertical", 3))
sketch13.addConstraint(Sketcher.Constraint("Horizontal", 4))
sketch13.addConstraint(Sketcher.Constraint("Equal", 1, 3))
sketch13.addConstraint(Sketcher.Constraint("DistanceX", 1, 2, 1, 1, 10.0))
sketch13.addConstraint(Sketcher.Constraint("DistanceX", 4, 1, 4, 2, 25.0))
sketch13.addConstraint(Sketcher.Constraint("DistanceY", 0, 2, 0, 1, 100.0))
sketch13.addConstraint(Sketcher.Constraint("DistanceX", 0, 2, -1, 1, 50.0))
sketch13.addConstraint(Sketcher.Constraint("DistanceY", -1, 1, 0, 2, 2163.0))
pad9 = body9.newObject("PartDesign::Pad", "Pad008")
pad9.Profile = sketch13
pad9.Length = 6
body10 = doc.addObject("PartDesign::Body", "Body009")

sketch14 = body10.newObject("Sketcher::SketchObject", "Sketch013")
sketch14.AttachmentSupport = (doc.getObject("XY_Plane009"), [""])
sketch14.MapMode = "FlatFace"
sketch14.AttachmentOffset = App.Placement(App.Vector(0, 0, 74), App.Rotation())
add_polygon(sketch14, [(65, 2248), (65, 2100), (75, 2100), (75, 2248)])
sketch14.addConstraint(Sketcher.Constraint("Vertical", 0))
sketch14.addConstraint(Sketcher.Constraint("Horizontal", 1))
sketch14.addConstraint(Sketcher.Constraint("Vertical", 2))
sketch14.addConstraint(Sketcher.Constraint("Horizontal", 3))
sketch14.addConstraint(Sketcher.Constraint("DistanceX", 1, 1, 1, 2, 10.0))
sketch14.addConstraint(Sketcher.Constraint("DistanceY", 0, 2, 0, 1, 148.0))
sketch14.addConstraint(Sketcher.Constraint("DistanceX", -1, 1, 0, 2, 65.0))
sketch14.addConstraint(Sketcher.Constraint("DistanceY", -1, 1, 0, 2, 2100.0))
pad10 = body10.newObject("PartDesign::Pad", "Pad009")
pad10.Profile = sketch14
pad10.Length = 148
pad10.Reversed = True

sketch15 = body10.newObject("Sketcher::SketchObject", "Sketch014")
sketch15.AttachmentSupport = (doc.getObject("YZ_Plane009"), [""])
sketch15.MapMode = "FlatFace"
sketch15.AttachmentOffset = App.Placement(App.Vector(0, 0, 75), App.Rotation())
sketch15.addGeometry(Part.Circle(App.Vector(2225, 49, 0), App.Vector(0, 0, 1), 7), False)
sketch15.addGeometry(Part.Circle(App.Vector(2225, -49, 0), App.Vector(0, 0, 1), 7), False)
sketch15.addGeometry(Part.Circle(App.Vector(2175, -49, 0), App.Vector(0, 0, 1), 7), False)
sketch15.addGeometry(Part.Circle(App.Vector(2175, 49, 0), App.Vector(0, 0, 1), 7), False)
sketch15.addGeometry(Part.Circle(App.Vector(2125, -49, 0), App.Vector(0, 0, 1), 7), False)
sketch15.addGeometry(Part.Circle(App.Vector(2125, 49, 0), App.Vector(0, 0, 1), 7), False)
sketch15.addConstraint(Sketcher.Constraint("Equal", 0, 1))
sketch15.addConstraint(Sketcher.Constraint("Equal", 1, 2))
sketch15.addConstraint(Sketcher.Constraint("Equal", 2, 3))
sketch15.addConstraint(Sketcher.Constraint("Equal", 3, 4))
sketch15.addConstraint(Sketcher.Constraint("Equal", 4, 5))
sketch15.addConstraint(Sketcher.Constraint("Symmetric", 0, 3, 1, 3, -1))
sketch15.addConstraint(Sketcher.Constraint("Symmetric", 2, 3, 3, 3, -1))
sketch15.addConstraint(Sketcher.Constraint("Symmetric", 4, 3, 5, 3, -1))
sketch15.addConstraint(Sketcher.Constraint("Horizontal", 1, 3, 2, 3))
sketch15.addConstraint(Sketcher.Constraint("Horizontal", 2, 3, 4, 3))
sketch15.addConstraint(Sketcher.Constraint("Diameter", 0, 14.0))
sketch15.addConstraint(Sketcher.Constraint("DistanceX", -1, 1, 0, 3, 2225.0))
sketch15.addConstraint(Sketcher.Constraint("DistanceY", -1, 1, 0, 3, 49.0))
sketch15.addConstraint(Sketcher.Constraint("DistanceX", -1, 1, 2, 3, 2175.0))
sketch15.addConstraint(Sketcher.Constraint("DistanceX", -1, 1, 4, 3, 2125.0))
pocket5 = body10.newObject("PartDesign::Pocket", "Pocket004")
pocket5.Profile = sketch15
pocket5.Type = "ThroughAll"
pocket5.Midplane = True

doc.recompute()
